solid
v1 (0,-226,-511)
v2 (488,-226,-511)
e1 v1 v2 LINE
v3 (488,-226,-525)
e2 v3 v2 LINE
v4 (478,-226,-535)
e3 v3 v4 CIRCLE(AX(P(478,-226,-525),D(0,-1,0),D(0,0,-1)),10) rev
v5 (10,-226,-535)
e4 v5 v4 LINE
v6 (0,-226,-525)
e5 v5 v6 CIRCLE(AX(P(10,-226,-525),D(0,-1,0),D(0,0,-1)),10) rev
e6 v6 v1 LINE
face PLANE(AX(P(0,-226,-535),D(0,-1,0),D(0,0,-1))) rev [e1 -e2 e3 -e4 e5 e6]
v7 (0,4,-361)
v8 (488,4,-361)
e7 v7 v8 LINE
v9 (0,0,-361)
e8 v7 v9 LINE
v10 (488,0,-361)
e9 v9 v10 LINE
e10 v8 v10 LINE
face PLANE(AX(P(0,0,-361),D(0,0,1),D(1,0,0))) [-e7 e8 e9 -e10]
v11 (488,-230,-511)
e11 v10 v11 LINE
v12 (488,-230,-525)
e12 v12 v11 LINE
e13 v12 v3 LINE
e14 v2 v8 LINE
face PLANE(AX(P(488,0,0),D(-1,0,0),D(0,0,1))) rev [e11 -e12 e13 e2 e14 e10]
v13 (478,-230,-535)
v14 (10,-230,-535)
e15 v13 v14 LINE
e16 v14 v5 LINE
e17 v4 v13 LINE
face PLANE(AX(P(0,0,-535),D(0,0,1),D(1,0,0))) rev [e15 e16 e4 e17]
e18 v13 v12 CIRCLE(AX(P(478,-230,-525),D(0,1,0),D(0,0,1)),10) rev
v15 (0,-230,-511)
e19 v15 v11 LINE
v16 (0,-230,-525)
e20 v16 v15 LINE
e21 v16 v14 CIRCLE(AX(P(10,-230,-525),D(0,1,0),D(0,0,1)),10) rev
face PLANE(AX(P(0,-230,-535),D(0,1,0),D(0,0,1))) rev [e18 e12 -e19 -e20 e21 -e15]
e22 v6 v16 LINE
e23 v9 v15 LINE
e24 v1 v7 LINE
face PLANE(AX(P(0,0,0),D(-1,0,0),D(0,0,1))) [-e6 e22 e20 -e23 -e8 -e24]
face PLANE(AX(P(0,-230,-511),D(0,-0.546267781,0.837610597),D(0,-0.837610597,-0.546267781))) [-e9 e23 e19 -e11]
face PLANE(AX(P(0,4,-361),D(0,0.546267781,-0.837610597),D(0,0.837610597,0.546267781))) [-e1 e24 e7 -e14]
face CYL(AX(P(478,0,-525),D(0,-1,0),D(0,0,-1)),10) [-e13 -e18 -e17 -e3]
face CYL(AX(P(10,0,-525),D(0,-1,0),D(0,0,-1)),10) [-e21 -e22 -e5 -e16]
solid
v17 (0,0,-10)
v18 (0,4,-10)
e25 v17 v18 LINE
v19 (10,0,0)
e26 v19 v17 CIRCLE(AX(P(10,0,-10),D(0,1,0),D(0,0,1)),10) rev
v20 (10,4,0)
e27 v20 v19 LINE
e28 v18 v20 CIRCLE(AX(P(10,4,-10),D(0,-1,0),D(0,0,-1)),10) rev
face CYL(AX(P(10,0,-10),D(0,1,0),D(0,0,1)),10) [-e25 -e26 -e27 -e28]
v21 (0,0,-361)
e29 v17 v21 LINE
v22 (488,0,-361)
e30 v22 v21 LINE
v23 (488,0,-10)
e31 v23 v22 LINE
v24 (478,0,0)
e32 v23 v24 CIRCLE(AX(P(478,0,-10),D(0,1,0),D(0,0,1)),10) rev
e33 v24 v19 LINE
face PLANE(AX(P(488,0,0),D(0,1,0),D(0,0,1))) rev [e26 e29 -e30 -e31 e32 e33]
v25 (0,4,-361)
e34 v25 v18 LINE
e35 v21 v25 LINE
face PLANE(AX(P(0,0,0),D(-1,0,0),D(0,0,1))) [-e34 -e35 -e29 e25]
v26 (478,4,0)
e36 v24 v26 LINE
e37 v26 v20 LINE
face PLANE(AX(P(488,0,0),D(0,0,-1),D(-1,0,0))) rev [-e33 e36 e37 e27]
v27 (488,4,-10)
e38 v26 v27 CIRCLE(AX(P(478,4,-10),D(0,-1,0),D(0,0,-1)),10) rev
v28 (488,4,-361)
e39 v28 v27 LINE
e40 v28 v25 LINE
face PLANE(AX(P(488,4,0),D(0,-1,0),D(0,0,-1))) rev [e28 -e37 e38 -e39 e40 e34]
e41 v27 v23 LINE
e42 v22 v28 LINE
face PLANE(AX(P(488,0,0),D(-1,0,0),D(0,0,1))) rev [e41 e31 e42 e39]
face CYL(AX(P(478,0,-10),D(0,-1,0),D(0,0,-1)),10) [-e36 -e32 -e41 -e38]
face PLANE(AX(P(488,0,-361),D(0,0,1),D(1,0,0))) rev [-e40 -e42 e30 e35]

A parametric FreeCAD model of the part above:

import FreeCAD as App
import Part
import Sketcher

V = App.Vector
Q = App.Units.Quantity


def edges_at(feature, points):
    """Names of the edges that pass closest to the given points."""
    edges = feature.Shape.Edges
    near = lambda p: min(range(len(edges)), key=lambda i: edges[i].distToShape(Part.Vertex(*p))[0])
    return sorted({f"Edge{near(p) + 1}" for p in points})


def add_polygon(sketch, points):
    """Adds a closed chain of lines whose ends are joined by coincident constraints."""
    first, n = sketch.GeometryCount, len(points)
    for a, b in zip(points, points[1:] + points[:1]):
        sketch.addGeometry(Part.LineSegment(App.Vector(*a, 0), App.Vector(*b, 0)), False)
    for i in range(n):
        sketch.addConstraint(Sketcher.Constraint("Coincident", first + i, 2, first + (i + 1) % n, 1))

doc = App.newDocument("Part")
body = doc.addObject("PartDesign::Body", "Body")

# Sketch on YZ plane
sketch1 = body.newObject("Sketcher::SketchObject", "Sketch")
sketch1.AttachmentSupport = (doc.getObject("YZ_Plane"), [""])
sketch1.MapMode = "FlatFace"
add_polygon(sketch1, [(4, 0), (0, 0), (0, -361), (4, -361)])  # lines 0-3
sketch1.addConstraint([
    Sketcher.Constraint("Horizontal", 0),
    Sketcher.Constraint("Vertical", 1),
    Sketcher.Constraint("Horizontal", 2),
    Sketcher.Constraint("Vertical", 3),
    Sketcher.Constraint("Coincident", 0, 2, -1, 1),
    Sketcher.Constraint("DistanceX", 0, 2, 0, 1, Q("4 mm")),
    Sketcher.Constraint("DistanceY", 1, 2, 1, 1, Q("361 mm")),
])
pad1 = body.newObject("PartDesign::Pad", "Pad")
pad1.Profile = sketch1
pad1.Length = 488
doc.recompute()

fillet = body.newObject("PartDesign::Fillet", "Fillet")
fillet.Base = (pad1, edges_at(pad1, [(488, 2, 0), (0, 2, 0)]))
fillet.Radius = 10
body2 = doc.addObject("PartDesign::Body", "Body001")

# Sketch on YZ plane
sketch2 = body2.newObject("Sketcher::SketchObject", "Sketch001")
sketch2.AttachmentSupport = (doc.getObject("YZ_Plane001"), [""])
sketch2.MapMode = "FlatFace"
sketch2.AttachmentOffset = App.Placement(V(0, 0, 488), App.Rotation())
add_polygon(sketch2, [(-226, -511), (4, -361), (0, -361), (-230, -511)])  # lines 0-3
sketch2.addConstraint([
    Sketcher.Constraint("Horizontal", 1),
    Sketcher.Constraint("Horizontal", 3),
    Sketcher.Constraint("PointOnObject", 1, 2, -2),
    Sketcher.Constraint("Parallel", 0, 2),
    Sketcher.Constraint("DistanceX", 1, 2, 1, 1, Q("4 mm")),
    Sketcher.Constraint("DistanceY", 0, 2, -1, 1, Q("361 mm")),
    Sketcher.Constraint("DistanceX", 2, 2, -1, 1, Q("230 mm")),
    Sketcher.Constraint("DistanceY", 2, 2, -1, 1, Q("511 mm")),
])
pad2 = body2.newObject("PartDesign::Pad", "Pad001")
pad2.Profile = sketch2
pad2.Length = 488
pad2.Reversed = True

# Sketch on XY plane
sketch3 = body2.newObject("Sketcher::SketchObject", "Sketch002")
sketch3.AttachmentSupport = (doc.getObject("XY_Plane001"), [""])
sketch3.MapMode = "FlatFace"
sketch3.AttachmentOffset = App.Placement(V(0, 0, -511), App.Rotation())
add_polygon(sketch3, [(488, -226), (488, -230), (0, -230), (0, -226)])  # lines 0-3
sketch3.addConstraint([
    Sketcher.Constraint("Vertical", 0),
    Sketcher.Constraint("Horizontal", 1),
    Sketcher.Constraint("Vertical", 2),
    Sketcher.Constraint("Horizontal", 3),
    Sketcher.Constraint("PointOnObject", 1, 2, -2),
    Sketcher.Constraint("DistanceX", 1, 2, 1, 1, Q("488 mm")),
    Sketcher.Constraint("DistanceY", 0, 2, 0, 1, Q("4 mm")),
    Sketcher.Constraint("DistanceY", 0, 2, -1, 1, Q("230 mm")),
])
pad3 = body2.newObject("PartDesign::Pad", "Pad002")
pad3.Profile = sketch3
pad3.Length = 24
pad3.Reversed = True
doc.recompute()

fillet2 = body2.newObject("PartDesign::Fillet", "Fillet001")
fillet2.Base = (pad3, edges_at(pad3, [(0, -228, -535), (488, -228, -535)]))
fillet2.Radius = 10

doc.recompute()
